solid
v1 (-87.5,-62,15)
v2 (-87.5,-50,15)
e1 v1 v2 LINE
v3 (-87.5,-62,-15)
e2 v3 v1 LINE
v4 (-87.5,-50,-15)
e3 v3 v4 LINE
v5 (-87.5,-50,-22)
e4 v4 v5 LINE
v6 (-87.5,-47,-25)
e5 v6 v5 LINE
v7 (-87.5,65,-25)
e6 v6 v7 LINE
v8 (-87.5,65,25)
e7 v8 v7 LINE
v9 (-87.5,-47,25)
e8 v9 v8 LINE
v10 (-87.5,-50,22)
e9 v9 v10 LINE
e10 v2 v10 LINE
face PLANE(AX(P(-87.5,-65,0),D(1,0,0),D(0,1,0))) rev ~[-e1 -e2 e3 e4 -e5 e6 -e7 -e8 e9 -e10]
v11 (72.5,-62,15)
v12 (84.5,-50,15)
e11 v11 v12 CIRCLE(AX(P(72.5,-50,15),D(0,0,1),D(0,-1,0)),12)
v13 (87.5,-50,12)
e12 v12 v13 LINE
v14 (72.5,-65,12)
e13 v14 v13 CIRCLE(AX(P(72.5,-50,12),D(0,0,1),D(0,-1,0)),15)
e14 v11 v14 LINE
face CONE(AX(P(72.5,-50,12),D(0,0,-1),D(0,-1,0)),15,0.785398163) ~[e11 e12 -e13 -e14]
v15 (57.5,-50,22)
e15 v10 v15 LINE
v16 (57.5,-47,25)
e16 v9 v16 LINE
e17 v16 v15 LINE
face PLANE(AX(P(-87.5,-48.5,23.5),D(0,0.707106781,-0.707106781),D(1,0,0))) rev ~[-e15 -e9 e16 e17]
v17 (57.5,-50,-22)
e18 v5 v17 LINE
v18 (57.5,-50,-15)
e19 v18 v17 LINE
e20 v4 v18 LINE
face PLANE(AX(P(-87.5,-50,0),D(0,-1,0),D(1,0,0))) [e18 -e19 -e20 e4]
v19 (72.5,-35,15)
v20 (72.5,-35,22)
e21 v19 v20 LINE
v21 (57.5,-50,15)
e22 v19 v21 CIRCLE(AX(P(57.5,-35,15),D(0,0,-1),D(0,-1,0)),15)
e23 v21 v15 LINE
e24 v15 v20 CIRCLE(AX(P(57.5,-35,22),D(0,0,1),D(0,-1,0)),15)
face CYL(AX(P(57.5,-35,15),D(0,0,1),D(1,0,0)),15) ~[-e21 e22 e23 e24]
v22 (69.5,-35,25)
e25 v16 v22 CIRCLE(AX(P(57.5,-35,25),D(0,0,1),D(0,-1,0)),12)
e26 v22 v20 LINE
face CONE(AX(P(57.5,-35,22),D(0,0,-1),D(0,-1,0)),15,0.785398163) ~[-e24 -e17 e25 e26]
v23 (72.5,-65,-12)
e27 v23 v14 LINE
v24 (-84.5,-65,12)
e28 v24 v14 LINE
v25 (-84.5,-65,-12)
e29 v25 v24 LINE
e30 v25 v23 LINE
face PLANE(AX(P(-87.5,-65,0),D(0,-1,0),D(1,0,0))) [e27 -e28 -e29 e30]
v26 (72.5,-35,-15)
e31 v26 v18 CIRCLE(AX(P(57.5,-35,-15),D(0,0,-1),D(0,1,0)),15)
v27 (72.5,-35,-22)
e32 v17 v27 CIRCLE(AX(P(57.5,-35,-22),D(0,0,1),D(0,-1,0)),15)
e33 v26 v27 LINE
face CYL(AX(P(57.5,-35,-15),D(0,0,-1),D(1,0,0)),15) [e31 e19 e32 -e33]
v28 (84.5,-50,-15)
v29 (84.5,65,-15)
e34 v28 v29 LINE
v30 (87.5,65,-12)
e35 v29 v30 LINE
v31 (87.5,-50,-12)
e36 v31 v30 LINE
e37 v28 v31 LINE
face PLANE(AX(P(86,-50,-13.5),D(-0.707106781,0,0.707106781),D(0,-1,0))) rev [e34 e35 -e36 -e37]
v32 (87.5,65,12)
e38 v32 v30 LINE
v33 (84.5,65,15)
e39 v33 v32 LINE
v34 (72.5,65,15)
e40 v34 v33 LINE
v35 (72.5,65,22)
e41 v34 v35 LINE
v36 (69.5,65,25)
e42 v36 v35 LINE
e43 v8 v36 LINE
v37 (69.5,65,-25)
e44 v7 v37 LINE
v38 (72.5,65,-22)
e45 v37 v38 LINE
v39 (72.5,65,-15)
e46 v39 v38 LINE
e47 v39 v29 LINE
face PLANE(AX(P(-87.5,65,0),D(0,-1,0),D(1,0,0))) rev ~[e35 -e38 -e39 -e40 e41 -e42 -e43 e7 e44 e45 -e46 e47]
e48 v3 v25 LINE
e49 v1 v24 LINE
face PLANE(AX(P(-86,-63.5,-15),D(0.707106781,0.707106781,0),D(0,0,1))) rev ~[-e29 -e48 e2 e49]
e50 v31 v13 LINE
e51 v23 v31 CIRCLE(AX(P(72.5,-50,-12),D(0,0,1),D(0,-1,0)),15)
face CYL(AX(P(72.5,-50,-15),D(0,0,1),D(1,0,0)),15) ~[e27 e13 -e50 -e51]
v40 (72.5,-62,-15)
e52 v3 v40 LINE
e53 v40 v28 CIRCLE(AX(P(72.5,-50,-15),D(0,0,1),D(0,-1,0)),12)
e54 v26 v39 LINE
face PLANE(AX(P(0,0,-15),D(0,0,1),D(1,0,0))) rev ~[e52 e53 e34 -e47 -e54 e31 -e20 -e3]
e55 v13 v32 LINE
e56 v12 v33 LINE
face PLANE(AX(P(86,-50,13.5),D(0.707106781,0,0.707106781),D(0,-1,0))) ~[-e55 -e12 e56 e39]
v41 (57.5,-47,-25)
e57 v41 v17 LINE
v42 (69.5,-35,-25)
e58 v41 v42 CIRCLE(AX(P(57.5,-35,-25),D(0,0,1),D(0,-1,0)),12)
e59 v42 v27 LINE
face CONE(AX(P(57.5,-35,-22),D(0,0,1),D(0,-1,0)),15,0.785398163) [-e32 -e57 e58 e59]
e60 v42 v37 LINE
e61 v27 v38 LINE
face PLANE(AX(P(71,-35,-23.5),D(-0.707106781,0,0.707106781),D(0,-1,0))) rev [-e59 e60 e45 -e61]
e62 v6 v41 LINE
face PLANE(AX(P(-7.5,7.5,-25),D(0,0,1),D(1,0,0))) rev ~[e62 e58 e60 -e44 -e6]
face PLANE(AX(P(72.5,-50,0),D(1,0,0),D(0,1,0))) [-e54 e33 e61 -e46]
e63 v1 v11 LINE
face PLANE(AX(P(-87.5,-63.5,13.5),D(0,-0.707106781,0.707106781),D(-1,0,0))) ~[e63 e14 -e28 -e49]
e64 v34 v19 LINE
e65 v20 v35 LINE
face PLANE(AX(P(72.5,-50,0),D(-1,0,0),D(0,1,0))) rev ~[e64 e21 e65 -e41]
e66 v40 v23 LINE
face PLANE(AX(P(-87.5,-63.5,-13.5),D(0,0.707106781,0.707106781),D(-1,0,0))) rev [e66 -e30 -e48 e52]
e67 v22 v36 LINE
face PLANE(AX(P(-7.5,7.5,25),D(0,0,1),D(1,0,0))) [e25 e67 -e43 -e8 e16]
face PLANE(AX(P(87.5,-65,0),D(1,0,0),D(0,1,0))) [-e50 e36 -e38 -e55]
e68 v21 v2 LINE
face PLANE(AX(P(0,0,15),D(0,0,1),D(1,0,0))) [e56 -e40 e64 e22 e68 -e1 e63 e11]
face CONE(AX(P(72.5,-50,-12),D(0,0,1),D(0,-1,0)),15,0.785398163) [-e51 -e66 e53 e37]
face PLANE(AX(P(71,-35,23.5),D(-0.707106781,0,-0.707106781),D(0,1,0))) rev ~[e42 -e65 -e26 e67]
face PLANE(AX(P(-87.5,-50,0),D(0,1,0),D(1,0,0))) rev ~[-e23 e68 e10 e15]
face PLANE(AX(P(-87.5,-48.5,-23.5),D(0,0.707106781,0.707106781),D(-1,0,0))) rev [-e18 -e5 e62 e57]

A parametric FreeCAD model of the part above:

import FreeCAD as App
import Part
import Sketcher

V = App.Vector
Q = App.Units.Quantity


def edges_at(feature, points):
    """Names of the edges that pass closest to the given points."""
    edges = feature.Shape.Edges
    near = lambda p: min(range(len(edges)), key=lambda i: edges[i].distToShape(Part.Vertex(*p))[0])
    return sorted({f"Edge{near(p) + 1}" for p in points})


def add_polygon(sketch, points):
    """Adds a closed chain of lines whose ends are joined by coincident constraints."""
    first, n = sketch.GeometryCount, len(points)
    for a, b in zip(points, points[1:] + points[:1]):
        sketch.addGeometry(Part.LineSegment(App.Vector(*a, 0), App.Vector(*b, 0)), False)
    for i in range(n):
        sketch.addConstraint(Sketcher.Constraint("Coincident", first + i, 2, first + (i + 1) % n, 1))

doc = App.newDocument("Part")
params = doc.addObject("Spreadsheet::Sheet", "Params")
for row, (alias, value) in enumerate([
    ("sketch1_width", "175 mm"),
    ("sketch1_height", "130 mm"),
    ("pad1_length", "15 mm"),
    ("pad1_length2", "15 mm"),
    ("sketch2_width", "160 mm"),
    ("sketch2_height", "115 mm"),
    ("pad2_length", "25 mm"),
    ("pad2_length2", "25 mm"),
    ("fillet_radius", "15 mm"),
    ("chamfer_size", "3 mm"),
], start=1):
    params.set(f"A{row}", alias)
    params.set(f"B{row}", "=" + value)
    params.setAlias(f"B{row}", alias)

body = doc.addObject("PartDesign::Body", "Body")

# Sketch on XY plane
sketch1 = body.newObject("Sketcher::SketchObject", "Sketch")
sketch1.AttachmentSupport = (doc.getObject("XY_Plane"), [""])
sketch1.MapMode = "FlatFace"
add_polygon(sketch1, [(-88, 65), (-88, -65), (88, -65), (88, 65)])  # lines 0-3
sketch1.addConstraint([
    Sketcher.Constraint("Vertical", 0),
    Sketcher.Constraint("Horizontal", 1),
    Sketcher.Constraint("Vertical", 2),
    Sketcher.Constraint("Horizontal", 3),
    Sketcher.Constraint("Symmetric", 0, 2, 2, 2, -1, 1),
    Sketcher.Constraint("DistanceX", 1, 1, 1, 2, Q("175 mm")),
    Sketcher.Constraint("DistanceY", 0, 2, 0, 1, Q("130 mm")),
])
sketch1.setExpression("Constraints[9]", "Params.sketch1_width")
sketch1.setExpression("Constraints[10]", "Params.sketch1_height")
pad1 = body.newObject("PartDesign::Pad", "Pad")
pad1.Profile = sketch1
pad1.Type = "TwoLengths"
pad1.setExpression("Length", "Params.pad1_length")
pad1.setExpression("Length2", "Params.pad1_length2")

# Sketch on XY plane
sketch2 = body.newObject("Sketcher::SketchObject", "Sketch001")
sketch2.AttachmentSupport = (doc.getObject("XY_Plane"), [""])
sketch2.MapMode = "FlatFace"
add_polygon(sketch2, [(-88, 65), (-88, -50), (72, -50), (72, 65)])  # lines 0-3
sketch2.addConstraint([
    Sketcher.Constraint("Vertical", 0),
    Sketcher.Constraint("Horizontal", 1),
    Sketcher.Constraint("Vertical", 2),
    Sketcher.Constraint("Horizontal", 3),
    Sketcher.Constraint("DistanceX", 1, 1, 1, 2, Q("160 mm")),
    Sketcher.Constraint("DistanceY", 0, 2, 0, 1, Q("115 mm")),
    Sketcher.Constraint("DistanceY", 0, 2, -1, 1, Q("50 mm")),
    Sketcher.Constraint("DistanceX", 0, 2, -1, 1, Q("87.5 mm")),
])
sketch2.setExpression("Constraints[8]", "Params.sketch2_width")
sketch2.setExpression("Constraints[9]", "Params.sketch2_height")
pad2 = body.newObject("PartDesign::Pad", "Pad001")
pad2.Profile = sketch2
pad2.Type = "TwoLengths"
pad2.setExpression("Length", "Params.pad2_length")
pad2.setExpression("Length2", "Params.pad2_length2")
doc.recompute()

fillet = body.newObject("PartDesign::Fillet", "Fillet")
fillet.Base = (pad2, edges_at(pad2, [(87.5, -65, 0), (72.5, -50, 20), (72.5, -50, -20)]))
fillet.setExpression("Radius", "Params.fillet_radius")
doc.recompute()

chamfer = body.newObject("PartDesign::Chamfer", "Chamfer")
chamfer.Base = (fillet, edges_at(fillet, [
    (72.5, 15, 25),
    (68.107, -45.607, 25),
    (-15, -50, 25),
    (-7.5, -65, 15),
    (72.5, -65, 0),
    (-87.5, -65, 0),
    (-7.5, -65, -15),
    (-15, -50, -25),
    (72.5, 15, -25),
]))
chamfer.setExpression("Size", "Params.chamfer_size")

doc.recompute()
